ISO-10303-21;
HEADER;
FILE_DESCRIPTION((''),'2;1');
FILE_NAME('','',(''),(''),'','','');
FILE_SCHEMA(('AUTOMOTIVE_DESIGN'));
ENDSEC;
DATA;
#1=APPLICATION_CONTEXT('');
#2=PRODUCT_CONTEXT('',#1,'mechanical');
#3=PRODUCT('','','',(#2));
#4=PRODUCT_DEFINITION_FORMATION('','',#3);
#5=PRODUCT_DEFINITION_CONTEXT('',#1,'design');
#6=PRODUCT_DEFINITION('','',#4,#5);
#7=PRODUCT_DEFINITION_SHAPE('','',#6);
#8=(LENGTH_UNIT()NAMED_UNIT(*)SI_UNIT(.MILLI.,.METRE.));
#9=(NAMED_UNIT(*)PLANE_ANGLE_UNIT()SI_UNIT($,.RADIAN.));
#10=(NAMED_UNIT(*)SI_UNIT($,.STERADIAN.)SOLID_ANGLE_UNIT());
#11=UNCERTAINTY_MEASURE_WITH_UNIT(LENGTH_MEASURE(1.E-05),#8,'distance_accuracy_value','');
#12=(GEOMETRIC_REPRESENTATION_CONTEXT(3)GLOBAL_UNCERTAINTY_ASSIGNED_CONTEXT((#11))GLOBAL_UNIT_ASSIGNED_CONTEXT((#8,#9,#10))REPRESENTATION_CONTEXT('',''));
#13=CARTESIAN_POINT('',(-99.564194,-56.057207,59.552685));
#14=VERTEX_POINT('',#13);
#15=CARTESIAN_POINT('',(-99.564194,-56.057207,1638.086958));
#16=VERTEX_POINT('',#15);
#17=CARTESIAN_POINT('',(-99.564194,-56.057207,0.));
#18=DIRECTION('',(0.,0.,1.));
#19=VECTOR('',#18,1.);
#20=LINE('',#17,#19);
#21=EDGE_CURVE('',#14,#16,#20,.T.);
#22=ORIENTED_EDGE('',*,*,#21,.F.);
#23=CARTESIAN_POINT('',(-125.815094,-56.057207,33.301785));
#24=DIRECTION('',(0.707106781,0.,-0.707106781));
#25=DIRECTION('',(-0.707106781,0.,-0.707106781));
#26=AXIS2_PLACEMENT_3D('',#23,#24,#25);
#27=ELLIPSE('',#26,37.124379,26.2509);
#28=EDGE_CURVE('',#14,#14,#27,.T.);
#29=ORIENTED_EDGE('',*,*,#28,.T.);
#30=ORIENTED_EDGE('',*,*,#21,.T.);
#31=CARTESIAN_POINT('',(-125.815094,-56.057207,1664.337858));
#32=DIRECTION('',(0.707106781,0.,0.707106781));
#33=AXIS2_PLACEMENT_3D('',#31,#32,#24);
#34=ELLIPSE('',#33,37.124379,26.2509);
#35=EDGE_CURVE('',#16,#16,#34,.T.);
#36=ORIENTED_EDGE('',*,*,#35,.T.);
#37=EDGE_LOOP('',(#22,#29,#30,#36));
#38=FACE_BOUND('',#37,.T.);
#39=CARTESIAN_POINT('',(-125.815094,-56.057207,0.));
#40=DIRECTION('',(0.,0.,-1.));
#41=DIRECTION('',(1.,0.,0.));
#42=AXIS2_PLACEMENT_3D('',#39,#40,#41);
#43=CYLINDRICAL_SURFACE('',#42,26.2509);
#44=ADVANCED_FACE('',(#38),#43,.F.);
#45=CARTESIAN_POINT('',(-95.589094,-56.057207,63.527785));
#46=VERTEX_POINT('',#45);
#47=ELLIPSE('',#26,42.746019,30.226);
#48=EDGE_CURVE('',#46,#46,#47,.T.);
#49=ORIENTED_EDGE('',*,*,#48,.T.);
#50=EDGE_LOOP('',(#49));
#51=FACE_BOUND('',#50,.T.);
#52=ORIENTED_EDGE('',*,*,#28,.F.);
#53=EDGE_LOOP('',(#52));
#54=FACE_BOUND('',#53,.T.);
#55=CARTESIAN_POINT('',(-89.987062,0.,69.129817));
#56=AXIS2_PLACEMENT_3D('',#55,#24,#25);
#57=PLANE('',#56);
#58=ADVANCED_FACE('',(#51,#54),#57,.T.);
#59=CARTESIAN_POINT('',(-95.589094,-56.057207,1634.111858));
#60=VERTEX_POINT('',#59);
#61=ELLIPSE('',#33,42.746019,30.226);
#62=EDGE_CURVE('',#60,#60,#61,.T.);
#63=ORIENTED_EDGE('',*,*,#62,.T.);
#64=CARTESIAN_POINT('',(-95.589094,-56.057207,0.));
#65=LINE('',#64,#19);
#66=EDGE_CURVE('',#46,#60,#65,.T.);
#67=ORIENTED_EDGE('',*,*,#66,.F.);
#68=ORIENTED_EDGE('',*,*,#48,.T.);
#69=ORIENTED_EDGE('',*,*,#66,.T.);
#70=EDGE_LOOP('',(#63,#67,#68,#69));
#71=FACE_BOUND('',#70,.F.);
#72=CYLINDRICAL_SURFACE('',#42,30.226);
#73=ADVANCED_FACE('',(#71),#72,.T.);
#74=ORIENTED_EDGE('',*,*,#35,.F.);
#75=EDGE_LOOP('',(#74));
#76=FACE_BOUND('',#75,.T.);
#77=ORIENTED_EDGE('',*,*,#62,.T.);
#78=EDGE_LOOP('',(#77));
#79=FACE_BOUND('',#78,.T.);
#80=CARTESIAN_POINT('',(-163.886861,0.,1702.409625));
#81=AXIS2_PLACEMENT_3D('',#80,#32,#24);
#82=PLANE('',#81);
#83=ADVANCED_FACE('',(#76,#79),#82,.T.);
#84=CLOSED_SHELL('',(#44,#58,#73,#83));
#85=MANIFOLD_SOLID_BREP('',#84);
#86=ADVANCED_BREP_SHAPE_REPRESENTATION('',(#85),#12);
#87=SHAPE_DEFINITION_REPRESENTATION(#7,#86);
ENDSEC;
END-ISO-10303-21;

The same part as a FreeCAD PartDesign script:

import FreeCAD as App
import Part
import Sketcher
Q = App.Units.Quantity


def add_polygon(sketch, points):
    """Adds a closed chain of lines whose ends are joined by coincident constraints."""
    first, n = sketch.GeometryCount, len(points)
    for a, b in zip(points, points[1:] + points[:1]):
        sketch.addGeometry(Part.LineSegment(App.Vector(*a, 0), App.Vector(*b, 0)), False)
    for i in range(n):
        sketch.addConstraint(Sketcher.Constraint("Coincident", first + i, 2, first + (i + 1) % n, 1))

doc = App.newDocument("Part")
body = doc.addObject("PartDesign::Body", "Body")

sketch1 = body.newObject("Sketcher::SketchObject", "Sketch")
sketch1.AttachmentSupport = (doc.getObject("XY_Plane"), [""])
sketch1.MapMode = "FlatFace"
sketch1.addGeometry([
    Part.Circle(App.Vector(-126, -56, 0), App.Vector(0, 0, 1), 30),
    Part.Circle(App.Vector(-126, -56, 0), App.Vector(0, 0, 1), 26),
], False)
sketch1.addConstraint([
    Sketcher.Constraint("Coincident", 1, 3, 0, 3),
    Sketcher.Constraint("Diameter", 0, Q("2.38 in")),
    Sketcher.Constraint("Diameter", 1, Q("2.067 in")),
    Sketcher.Constraint("DistanceX", 0, 3, -1, 1, Q("125.815094 mm")),
    Sketcher.Constraint("DistanceY", 0, 3, -1, 1, Q("56.057207 mm")),
])
pad1 = body.newObject("PartDesign::Pad", "Pad")
pad1.Profile = sketch1
pad1.Length = Q("66.75 in")

sketch2 = body.newObject("Sketcher::SketchObject", "Sketch001")
sketch2.AttachmentSupport = (doc.getObject("XZ_Plane"), [""])
sketch2.MapMode = "FlatFace"
add_polygon(sketch2, [(-90, 69), (-159, 0), (-89, 0)])
sketch2.addConstraint([
    Sketcher.Constraint("Horizontal", 1),
    Sketcher.Constraint("PointOnObject", 0, 2, -1),
    Sketcher.Constraint("Angle", 0, Q("-135 deg")),
    Sketcher.Constraint("DistanceX", 1, 1, 1, 2, Q("70.300765 mm")),
    Sketcher.Constraint("DistanceX", 0, 2, -1, 1, Q("159.116879 mm")),
    Sketcher.Constraint("DistanceX", 2, 2, -1, 1, Q("89.987062 mm")),
])
pocket1 = body.newObject("PartDesign::Pocket", "Pocket")
pocket1.Profile = sketch2
pocket1.Length = Q("4.06 in")
pocket1.Reversed = True

sketch3 = body.newObject("Sketcher::SketchObject", "Sketch002")
sketch3.AttachmentSupport = (doc.getObject("XZ_Plane"), [""])
sketch3.MapMode = "FlatFace"
add_polygon(sketch3, [(-93, 1702), (-164, 1702), (-93, 1632)])
sketch3.addConstraint([
    Sketcher.Constraint("Horizontal", 0),
    Sketcher.Constraint("Vertical", 2),
    Sketcher.Constraint("Equal", 0, 2),
    Sketcher.Constraint("Distance", 1, Q("99.672249 mm")),
    Sketcher.Constraint("DistanceX", 0, 2, -1, 1, Q("163.886861 mm")),
    Sketcher.Constraint("DistanceY", -1, 1, 0, 2, Q("1702.409625 mm")),
])
pocket2 = body.newObject("PartDesign::Pocket", "Pocket001")
pocket2.Profile = sketch3
pocket2.Length = Q("4.92 in")
pocket2.Reversed = True

doc.recompute()
